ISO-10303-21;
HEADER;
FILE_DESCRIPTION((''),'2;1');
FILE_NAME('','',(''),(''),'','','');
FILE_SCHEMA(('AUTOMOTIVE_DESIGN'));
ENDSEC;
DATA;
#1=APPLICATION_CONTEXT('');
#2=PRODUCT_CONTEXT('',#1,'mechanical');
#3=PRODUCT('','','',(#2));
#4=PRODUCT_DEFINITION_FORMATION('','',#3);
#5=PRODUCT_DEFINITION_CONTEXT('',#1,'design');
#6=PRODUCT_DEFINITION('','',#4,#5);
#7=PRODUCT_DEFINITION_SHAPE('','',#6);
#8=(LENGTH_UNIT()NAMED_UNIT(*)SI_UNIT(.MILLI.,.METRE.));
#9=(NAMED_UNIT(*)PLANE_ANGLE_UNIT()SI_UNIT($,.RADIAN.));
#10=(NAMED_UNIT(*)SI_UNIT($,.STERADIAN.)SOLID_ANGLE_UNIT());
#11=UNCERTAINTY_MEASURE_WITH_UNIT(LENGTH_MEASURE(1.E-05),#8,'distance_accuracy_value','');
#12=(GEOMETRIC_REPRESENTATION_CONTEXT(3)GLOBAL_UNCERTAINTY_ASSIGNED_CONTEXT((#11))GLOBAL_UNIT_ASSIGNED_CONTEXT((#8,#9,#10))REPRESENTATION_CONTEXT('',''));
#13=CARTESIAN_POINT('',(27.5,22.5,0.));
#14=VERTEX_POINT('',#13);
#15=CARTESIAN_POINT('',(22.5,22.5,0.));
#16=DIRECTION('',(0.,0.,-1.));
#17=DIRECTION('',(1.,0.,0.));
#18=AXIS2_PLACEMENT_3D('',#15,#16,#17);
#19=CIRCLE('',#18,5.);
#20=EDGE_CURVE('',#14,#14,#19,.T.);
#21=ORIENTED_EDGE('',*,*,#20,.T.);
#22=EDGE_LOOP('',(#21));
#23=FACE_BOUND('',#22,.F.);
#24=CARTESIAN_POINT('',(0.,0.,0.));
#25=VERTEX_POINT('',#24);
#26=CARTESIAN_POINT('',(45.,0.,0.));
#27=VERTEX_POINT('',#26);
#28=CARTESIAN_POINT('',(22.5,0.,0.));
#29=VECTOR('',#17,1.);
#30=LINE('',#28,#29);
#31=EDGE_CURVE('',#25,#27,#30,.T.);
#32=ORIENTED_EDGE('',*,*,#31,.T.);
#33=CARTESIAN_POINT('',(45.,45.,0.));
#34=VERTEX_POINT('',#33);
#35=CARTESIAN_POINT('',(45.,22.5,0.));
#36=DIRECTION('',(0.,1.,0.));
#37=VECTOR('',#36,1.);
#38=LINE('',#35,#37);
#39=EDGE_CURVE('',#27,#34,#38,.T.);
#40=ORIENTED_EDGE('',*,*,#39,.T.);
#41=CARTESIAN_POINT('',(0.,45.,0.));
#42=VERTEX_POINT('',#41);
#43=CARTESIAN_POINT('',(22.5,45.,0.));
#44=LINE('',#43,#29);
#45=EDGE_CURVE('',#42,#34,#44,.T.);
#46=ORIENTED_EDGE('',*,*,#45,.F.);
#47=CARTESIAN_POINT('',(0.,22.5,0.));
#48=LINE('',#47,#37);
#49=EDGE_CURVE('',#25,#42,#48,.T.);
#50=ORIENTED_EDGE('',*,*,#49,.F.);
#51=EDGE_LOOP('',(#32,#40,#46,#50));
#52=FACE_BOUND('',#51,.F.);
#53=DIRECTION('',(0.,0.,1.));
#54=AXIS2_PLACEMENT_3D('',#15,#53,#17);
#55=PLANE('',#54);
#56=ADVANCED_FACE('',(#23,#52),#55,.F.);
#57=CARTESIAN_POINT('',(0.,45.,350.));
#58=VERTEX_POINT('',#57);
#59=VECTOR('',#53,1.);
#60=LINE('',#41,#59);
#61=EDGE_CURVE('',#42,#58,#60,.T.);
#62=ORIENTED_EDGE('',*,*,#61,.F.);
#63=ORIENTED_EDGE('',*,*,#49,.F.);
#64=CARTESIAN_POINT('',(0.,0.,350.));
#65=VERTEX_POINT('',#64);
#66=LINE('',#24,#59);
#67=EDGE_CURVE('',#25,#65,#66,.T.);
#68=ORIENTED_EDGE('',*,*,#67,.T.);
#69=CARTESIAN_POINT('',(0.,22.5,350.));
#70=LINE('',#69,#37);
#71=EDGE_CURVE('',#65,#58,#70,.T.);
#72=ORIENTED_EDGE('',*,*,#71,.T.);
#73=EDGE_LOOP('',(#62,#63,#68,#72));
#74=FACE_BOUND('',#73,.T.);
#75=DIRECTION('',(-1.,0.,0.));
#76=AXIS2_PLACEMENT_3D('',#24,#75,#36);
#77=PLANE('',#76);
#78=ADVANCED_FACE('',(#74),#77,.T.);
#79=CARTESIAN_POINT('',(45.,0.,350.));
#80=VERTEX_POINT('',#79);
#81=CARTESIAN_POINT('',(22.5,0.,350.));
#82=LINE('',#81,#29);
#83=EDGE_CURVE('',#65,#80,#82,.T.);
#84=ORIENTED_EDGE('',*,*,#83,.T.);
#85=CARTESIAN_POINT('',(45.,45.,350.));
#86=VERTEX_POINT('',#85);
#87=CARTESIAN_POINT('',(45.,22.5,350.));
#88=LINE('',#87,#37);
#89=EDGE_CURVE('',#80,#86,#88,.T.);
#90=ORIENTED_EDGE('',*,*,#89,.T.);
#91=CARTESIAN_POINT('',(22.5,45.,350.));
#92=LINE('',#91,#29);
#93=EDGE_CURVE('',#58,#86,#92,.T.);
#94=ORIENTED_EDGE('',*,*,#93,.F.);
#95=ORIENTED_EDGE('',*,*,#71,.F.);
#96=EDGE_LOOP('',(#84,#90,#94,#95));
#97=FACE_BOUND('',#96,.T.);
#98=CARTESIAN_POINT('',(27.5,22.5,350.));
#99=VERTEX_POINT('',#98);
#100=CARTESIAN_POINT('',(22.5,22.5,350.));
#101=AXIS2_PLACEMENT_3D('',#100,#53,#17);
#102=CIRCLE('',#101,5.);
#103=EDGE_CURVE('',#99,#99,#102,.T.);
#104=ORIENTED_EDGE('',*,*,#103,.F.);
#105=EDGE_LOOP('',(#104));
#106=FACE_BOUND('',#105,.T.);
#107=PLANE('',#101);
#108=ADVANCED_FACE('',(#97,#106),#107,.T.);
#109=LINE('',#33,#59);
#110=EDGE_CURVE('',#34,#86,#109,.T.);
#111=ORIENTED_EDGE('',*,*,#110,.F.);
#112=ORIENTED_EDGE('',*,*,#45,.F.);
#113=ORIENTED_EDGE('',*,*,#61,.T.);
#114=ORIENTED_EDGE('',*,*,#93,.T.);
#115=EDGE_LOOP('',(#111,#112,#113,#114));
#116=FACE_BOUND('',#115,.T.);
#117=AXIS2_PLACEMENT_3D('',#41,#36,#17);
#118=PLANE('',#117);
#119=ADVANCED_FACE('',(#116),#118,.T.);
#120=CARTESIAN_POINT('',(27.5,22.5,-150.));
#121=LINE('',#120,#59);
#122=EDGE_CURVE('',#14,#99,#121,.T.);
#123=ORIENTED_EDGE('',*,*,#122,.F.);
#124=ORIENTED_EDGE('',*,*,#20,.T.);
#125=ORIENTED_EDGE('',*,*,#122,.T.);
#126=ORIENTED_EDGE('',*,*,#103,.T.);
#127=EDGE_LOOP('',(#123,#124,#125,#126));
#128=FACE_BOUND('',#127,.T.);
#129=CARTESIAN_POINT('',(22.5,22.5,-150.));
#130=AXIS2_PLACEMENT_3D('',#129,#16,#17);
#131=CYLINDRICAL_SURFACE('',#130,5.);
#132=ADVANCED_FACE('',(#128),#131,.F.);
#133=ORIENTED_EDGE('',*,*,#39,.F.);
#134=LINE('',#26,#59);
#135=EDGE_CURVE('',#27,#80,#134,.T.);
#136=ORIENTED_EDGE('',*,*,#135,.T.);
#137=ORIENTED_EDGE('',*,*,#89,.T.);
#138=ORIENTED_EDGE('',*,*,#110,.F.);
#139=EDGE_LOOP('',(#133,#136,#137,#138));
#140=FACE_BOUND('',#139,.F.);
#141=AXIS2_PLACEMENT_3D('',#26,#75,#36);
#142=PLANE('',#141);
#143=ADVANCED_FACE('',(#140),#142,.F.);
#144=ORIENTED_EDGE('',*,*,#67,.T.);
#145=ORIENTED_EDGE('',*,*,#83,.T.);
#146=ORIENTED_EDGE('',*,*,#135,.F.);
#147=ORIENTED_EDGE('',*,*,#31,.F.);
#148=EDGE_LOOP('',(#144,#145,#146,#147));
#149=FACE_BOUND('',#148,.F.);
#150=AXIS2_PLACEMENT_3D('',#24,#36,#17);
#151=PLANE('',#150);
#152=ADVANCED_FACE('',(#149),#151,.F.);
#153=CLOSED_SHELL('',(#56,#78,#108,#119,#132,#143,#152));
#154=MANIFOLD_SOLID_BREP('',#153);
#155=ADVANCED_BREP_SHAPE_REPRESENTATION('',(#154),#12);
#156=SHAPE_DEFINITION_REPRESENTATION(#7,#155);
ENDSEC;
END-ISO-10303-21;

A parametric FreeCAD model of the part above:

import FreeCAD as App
import Part
import Sketcher


def add_polygon(sketch, points):
    """Adds a closed chain of lines whose ends are joined by coincident constraints."""
    first, n = sketch.GeometryCount, len(points)
    for a, b in zip(points, points[1:] + points[:1]):
        sketch.addGeometry(Part.LineSegment(App.Vector(*a, 0), App.Vector(*b, 0)), False)
    for i in range(n):
        sketch.addConstraint(Sketcher.Constraint("Coincident", first + i, 2, first + (i + 1) % n, 1))

doc = App.newDocument("Part")
body = doc.addObject("PartDesign::Body", "Body")

# Sketch on XY plane
sketch1 = doc.addObject("Sketcher::SketchObject", "Sketch")
body.addObject(sketch1)
sketch1.AttachmentSupport = (doc.XY_Plane, [""])
sketch1.MapMode = "FlatFace"
sketch1.AttachmentOffset = App.Placement(App.Vector(0, 0, -150), App.Rotation())
sketch1.addGeometry(Part.Circle(App.Vector(22, 22, 0), App.Vector(0, 0, 1), 5), False)
sketch1.addConstraint([
    Sketcher.Constraint("Diameter", 0, 10.0),
    Sketcher.Constraint("DistanceX", -1, 1, 0, 3, 22.5),
    Sketcher.Constraint("DistanceY", -1, 1, 0, 3, 22.5),
])
pad1 = doc.addObject("PartDesign::Pad", "Pad")
body.addObject(pad1)
pad1.Profile = sketch1
pad1.Length = 500
body2 = doc.addObject("PartDesign::Body", "Body001")

# Sketch on XY plane
sketch2 = doc.addObject("Sketcher::SketchObject", "Sketch001")
body2.addObject(sketch2)
sketch2.AttachmentSupport = (doc.getObject("XY_Plane001"), [""])
sketch2.MapMode = "FlatFace"
add_polygon(sketch2, [(0, 45), (0, 0), (45, 0), (45, 45)])  # lines 0-3
sketch2.addConstraint([
    Sketcher.Constraint("Vertical", 0),
    Sketcher.Constraint("Horizontal", 1),
    Sketcher.Constraint("Vertical", 2),
    Sketcher.Constraint("Horizontal", 3),
    Sketcher.Constraint("Coincident", 0, 2, -1, 1),
    Sketcher.Constraint("Equal", 3, 0),
    Sketcher.Constraint("DistanceX", 1, 1, 1, 2, 45.0),
])
pad2 = doc.addObject("PartDesign::Pad", "Pad001")
body2.addObject(pad2)
pad2.Profile = sketch2
pad2.Length = 350
doc.recompute()

boolean = doc.addObject("PartDesign::Boolean", "Boolean")
body2.addObject(boolean)
boolean.Type = "Cut"
boolean.addObjects([body])

doc.recompute()
